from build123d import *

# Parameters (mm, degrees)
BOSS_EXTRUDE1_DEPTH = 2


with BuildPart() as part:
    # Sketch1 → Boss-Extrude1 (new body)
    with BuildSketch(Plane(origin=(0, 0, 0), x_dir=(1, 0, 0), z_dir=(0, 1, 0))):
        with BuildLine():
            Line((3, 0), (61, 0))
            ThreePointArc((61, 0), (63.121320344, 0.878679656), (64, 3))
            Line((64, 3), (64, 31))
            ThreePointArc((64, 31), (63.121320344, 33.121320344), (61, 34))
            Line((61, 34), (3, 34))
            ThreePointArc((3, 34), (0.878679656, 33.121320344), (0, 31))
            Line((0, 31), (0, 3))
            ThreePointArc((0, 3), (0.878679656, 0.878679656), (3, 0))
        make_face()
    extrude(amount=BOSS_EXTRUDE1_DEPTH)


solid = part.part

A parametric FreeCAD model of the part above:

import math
import FreeCAD as App
import Part
import Sketcher

doc = App.newDocument("Part")
body = doc.addObject("PartDesign::Body", "Body")

sketch1 = body.newObject("Sketcher::SketchObject", "Sketch")
sketch1.AttachmentSupport = (doc.getObject("XZ_Plane"), [""])
sketch1.MapMode = "FlatFace"
sketch1.addGeometry([
    Part.LineSegment(App.Vector(3, 0, 0), App.Vector(61, 0, 0)),
    Part.ArcOfCircle(Part.Circle(App.Vector(61, -3, 0), App.Vector(0, 0, 1), 3), math.radians(0), math.radians(90)),
    Part.LineSegment(App.Vector(64, -3, 0), App.Vector(64, -31, 0)),
    Part.ArcOfCircle(Part.Circle(App.Vector(61, -31, 0), App.Vector(0, 0, 1), 3), math.radians(-90), math.radians(0)),
    Part.LineSegment(App.Vector(61, -34, 0), App.Vector(3, -34, 0)),
    Part.ArcOfCircle(Part.Circle(App.Vector(3, -31, 0), App.Vector(0, 0, 1), 3), math.radians(180), math.radians(270)),
    Part.LineSegment(App.Vector(0, -31, 0), App.Vector(0, -3, 0)),
    Part.ArcOfCircle(Part.Circle(App.Vector(3, -3, 0), App.Vector(0, 0, 1), 3), math.radians(90), math.radians(180)),
], False)
sketch1.addConstraint([
    Sketcher.Constraint("Tangent", 0, 2, 1, 2),
    Sketcher.Constraint("Tangent", 1, 1, 2, 1),
    Sketcher.Constraint("Tangent", 2, 2, 3, 2),
    Sketcher.Constraint("Tangent", 3, 1, 4, 1),
    Sketcher.Constraint("Tangent", 4, 2, 5, 2),
    Sketcher.Constraint("Tangent", 5, 1, 6, 1),
    Sketcher.Constraint("Tangent", 6, 2, 7, 2),
    Sketcher.Constraint("Tangent", 7, 1, 0, 1),
    Sketcher.Constraint("Horizontal", 0),
    Sketcher.Constraint("Vertical", 2),
    Sketcher.Constraint("Horizontal", 4),
    Sketcher.Constraint("Vertical", 6),
    Sketcher.Constraint("Equal", 1, 3),
    Sketcher.Constraint("Equal", 3, 5),
    Sketcher.Constraint("Equal", 5, 7),
    Sketcher.Constraint("PointOnObject", 0, 2, -1),
    Sketcher.Constraint("PointOnObject", 5, 1, -2),
    Sketcher.Constraint("Radius", 1, 3.0),
    Sketcher.Constraint("DistanceX", 0, 1, 0, 2, 58.0),
    Sketcher.Constraint("DistanceY", 2, 2, 2, 1, 28.0),
])
pad1 = body.newObject("PartDesign::Pad", "Pad")
pad1.Profile = sketch1
pad1.Length = 2
pad1.Reversed = True

doc.recompute()
